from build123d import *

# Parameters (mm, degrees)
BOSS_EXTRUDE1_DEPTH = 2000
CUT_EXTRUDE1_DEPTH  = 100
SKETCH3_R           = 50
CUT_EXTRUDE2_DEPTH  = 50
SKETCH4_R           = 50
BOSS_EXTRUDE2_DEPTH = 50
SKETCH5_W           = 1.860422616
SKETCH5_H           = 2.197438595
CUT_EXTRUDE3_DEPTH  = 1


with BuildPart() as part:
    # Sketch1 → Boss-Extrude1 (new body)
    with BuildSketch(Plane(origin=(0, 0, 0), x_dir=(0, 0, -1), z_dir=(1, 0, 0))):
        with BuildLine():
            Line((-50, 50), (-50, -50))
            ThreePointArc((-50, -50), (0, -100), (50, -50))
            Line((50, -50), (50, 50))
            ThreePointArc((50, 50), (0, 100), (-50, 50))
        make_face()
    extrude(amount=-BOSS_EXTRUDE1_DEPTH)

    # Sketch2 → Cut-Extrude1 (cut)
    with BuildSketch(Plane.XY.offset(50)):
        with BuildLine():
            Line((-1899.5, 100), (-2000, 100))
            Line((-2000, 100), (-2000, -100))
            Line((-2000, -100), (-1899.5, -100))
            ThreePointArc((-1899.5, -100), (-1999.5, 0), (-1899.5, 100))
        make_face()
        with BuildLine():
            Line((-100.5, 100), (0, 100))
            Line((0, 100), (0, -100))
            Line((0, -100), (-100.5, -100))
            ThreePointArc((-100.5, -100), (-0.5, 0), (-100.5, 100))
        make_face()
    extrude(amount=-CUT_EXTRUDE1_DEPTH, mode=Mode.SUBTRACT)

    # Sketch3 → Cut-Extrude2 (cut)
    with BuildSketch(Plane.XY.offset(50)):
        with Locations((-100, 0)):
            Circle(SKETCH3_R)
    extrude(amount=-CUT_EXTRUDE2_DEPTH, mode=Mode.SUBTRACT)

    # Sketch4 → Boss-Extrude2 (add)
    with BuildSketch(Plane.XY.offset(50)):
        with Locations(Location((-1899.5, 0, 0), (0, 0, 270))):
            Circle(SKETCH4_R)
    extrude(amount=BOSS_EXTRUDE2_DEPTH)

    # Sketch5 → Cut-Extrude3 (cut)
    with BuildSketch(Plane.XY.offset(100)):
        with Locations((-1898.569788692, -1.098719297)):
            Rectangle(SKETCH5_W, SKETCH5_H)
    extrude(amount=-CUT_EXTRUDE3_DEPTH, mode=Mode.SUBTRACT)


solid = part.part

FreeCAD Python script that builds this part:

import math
import FreeCAD as App
import Part
import Sketcher

V = App.Vector
Q = App.Units.Quantity

doc = App.newDocument("Part")
params = doc.addObject("Spreadsheet::Sheet", "Params")
for row, (alias, value) in enumerate([
    ("sketch1_radius", "50 mm"),
    ("sketch1_width", "100 mm"),
    ("pad1_length", "2000 mm"),
    ("sketch2_radius", "100 mm"),
    ("sketch2_width", "100.5 mm"),
    ("pocket1_length", "100 mm"),
    ("sketch3_diameter", "100 mm"),
    ("pocket2_length", "50 mm"),
    ("sketch4_diameter", "100 mm"),
    ("pad2_length", "50 mm"),
    ("pocket3_length", "1 mm"),
], start=1):
    params.set(f"A{row}", alias)
    params.set(f"B{row}", "=" + value)
    params.setAlias(f"B{row}", alias)

body = doc.addObject("PartDesign::Body", "Body")

# Sketch on YZ plane
sketch1 = doc.addObject("Sketcher::SketchObject", "Sketch")
body.addObject(sketch1)
sketch1.AttachmentSupport = (doc.YZ_Plane, [""])
sketch1.MapMode = "FlatFace"
sketch1.addGeometry(Part.LineSegment(V(50, 50, 0), V(-50, 50, 0)), False)
sketch1.addGeometry(Part.ArcOfCircle(Part.Circle(V(-50, 0, 0), V(0, 0, 1), 50), math.radians(90), math.radians(270)), False)
sketch1.addGeometry(Part.LineSegment(V(-50, -50, 0), V(50, -50, 0)), False)
sketch1.addGeometry(Part.ArcOfCircle(Part.Circle(V(50, 0, 0), V(0, 0, 1), 50), math.radians(-90), math.radians(90)), False)
sketch1.addConstraint(Sketcher.Constraint("Tangent", 0, 2, 1, 1))
sketch1.addConstraint(Sketcher.Constraint("Tangent", 1, 2, 2, 1))
sketch1.addConstraint(Sketcher.Constraint("Tangent", 2, 2, 3, 1))
sketch1.addConstraint(Sketcher.Constraint("Tangent", 3, 2, 0, 1))
sketch1.addConstraint(Sketcher.Constraint("Horizontal", 0))
sketch1.addConstraint(Sketcher.Constraint("Horizontal", 2))
sketch1.addConstraint(Sketcher.Constraint("Symmetric", 1, 3, 3, 3, -1, 1))
sketch1.addConstraint(Sketcher.Constraint("Radius", 1, Q("50 mm")))
sketch1.addConstraint(Sketcher.Constraint("DistanceX", 0, 2, 0, 1, Q("100 mm")))
sketch1.setExpression("Constraints[7]", "Params.sketch1_radius")
sketch1.setExpression("Constraints[8]", "Params.sketch1_width")
pad1 = doc.addObject("PartDesign::Pad", "Pad")
body.addObject(pad1)
pad1.Profile = sketch1
pad1.setExpression("Length", "Params.pad1_length")
pad1.Reversed = True

# Sketch on XY plane
sketch2 = doc.addObject("Sketcher::SketchObject", "Sketch001")
body.addObject(sketch2)
sketch2.AttachmentSupport = (doc.XY_Plane, [""])
sketch2.MapMode = "FlatFace"
sketch2.AttachmentOffset = App.Placement(V(0, 0, 50), App.Rotation())
sketch2.addGeometry(Part.LineSegment(V(-1900, 100, 0), V(-2000, 100, 0)), False)
sketch2.addGeometry(Part.LineSegment(V(-2000, 100, 0), V(-2000, -100, 0)), False)
sketch2.addGeometry(Part.LineSegment(V(-2000, -100, 0), V(-1900, -100, 0)), False)
sketch2.addGeometry(Part.ArcOfCircle(Part.Circle(V(-1900, 0, 0), V(0, 0, 1), 100), math.radians(90), math.radians(270)), False)
sketch2.addGeometry(Part.LineSegment(V(0, 100, 0), V(-100, 100, 0)), False)
sketch2.addGeometry(Part.ArcOfCircle(Part.Circle(V(-100, 0, 0), V(0, 0, 1), 100), math.radians(-90), math.radians(90)), False)
sketch2.addGeometry(Part.LineSegment(V(-100, -100, 0), V(0, -100, 0)), False)
sketch2.addGeometry(Part.LineSegment(V(0, -100, 0), V(0, 100, 0)), False)
sketch2.addConstraint(Sketcher.Constraint("Coincident", 0, 2, 1, 1))
sketch2.addConstraint(Sketcher.Constraint("Coincident", 1, 2, 2, 1))
sketch2.addConstraint(Sketcher.Constraint("Tangent", 2, 2, 3, 2))
sketch2.addConstraint(Sketcher.Constraint("Tangent", 3, 1, 0, 1))
sketch2.addConstraint(Sketcher.Constraint("Tangent", 4, 2, 5, 2))
sketch2.addConstraint(Sketcher.Constraint("Tangent", 5, 1, 6, 1))
sketch2.addConstraint(Sketcher.Constraint("Coincident", 6, 2, 7, 1))
sketch2.addConstraint(Sketcher.Constraint("Coincident", 7, 2, 4, 1))
sketch2.addConstraint(Sketcher.Constraint("Horizontal", 0))
sketch2.addConstraint(Sketcher.Constraint("Vertical", 1))
sketch2.addConstraint(Sketcher.Constraint("Horizontal", 2))
sketch2.addConstraint(Sketcher.Constraint("Horizontal", 4))
sketch2.addConstraint(Sketcher.Constraint("Horizontal", 6))
sketch2.addConstraint(Sketcher.Constraint("Vertical", 7))
sketch2.addConstraint(Sketcher.Constraint("Equal", 3, 5))
sketch2.addConstraint(Sketcher.Constraint("Symmetric", 6, 2, 7, 2, -1, 1))
sketch2.addConstraint(Sketcher.Constraint("PointOnObject", 3, 3, -1))
sketch2.addConstraint(Sketcher.Constraint("Equal", 2, 4))
sketch2.addConstraint(Sketcher.Constraint("Radius", 3, Q("100 mm")))
sketch2.addConstraint(Sketcher.Constraint("DistanceX", 0, 2, 0, 1, Q("100.5 mm")))
sketch2.addConstraint(Sketcher.Constraint("DistanceX", 0, 2, -1, 1, Q("2000 mm")))
sketch2.setExpression("Constraints[18]", "Params.sketch2_radius")
sketch2.setExpression("Constraints[19]", "Params.sketch2_width")
pocket1 = doc.addObject("PartDesign::Pocket", "Pocket")
body.addObject(pocket1)
pocket1.Profile = sketch2
pocket1.setExpression("Length", "Params.pocket1_length")

# Sketch on XY plane
sketch3 = doc.addObject("Sketcher::SketchObject", "Sketch002")
body.addObject(sketch3)
sketch3.AttachmentSupport = (doc.XY_Plane, [""])
sketch3.MapMode = "FlatFace"
sketch3.AttachmentOffset = App.Placement(V(0, 0, 50), App.Rotation())
sketch3.addGeometry(Part.Circle(V(-100, 0, 0), V(0, 0, 1), 50), False)
sketch3.addConstraint(Sketcher.Constraint("PointOnObject", 0, 3, -1))
sketch3.addConstraint(Sketcher.Constraint("Diameter", 0, Q("100 mm")))
sketch3.addConstraint(Sketcher.Constraint("DistanceX", 0, 3, -1, 1, Q("100 mm")))
sketch3.setExpression("Constraints[1]", "Params.sketch3_diameter")
pocket2 = doc.addObject("PartDesign::Pocket", "Pocket001")
body.addObject(pocket2)
pocket2.Profile = sketch3
pocket2.setExpression("Length", "Params.pocket2_length")

# Sketch on XY plane
sketch4 = doc.addObject("Sketcher::SketchObject", "Sketch003")
body.addObject(sketch4)
sketch4.AttachmentSupport = (doc.XY_Plane, [""])
sketch4.MapMode = "FlatFace"
sketch4.AttachmentOffset = App.Placement(V(0, 0, 50), App.Rotation())
sketch4.addGeometry(Part.Circle(V(-1900, 0, 0), V(0, 0, 1), 50), False)
sketch4.addConstraint(Sketcher.Constraint("PointOnObject", 0, 3, -1))
sketch4.addConstraint(Sketcher.Constraint("Diameter", 0, Q("100 mm")))
sketch4.addConstraint(Sketcher.Constraint("DistanceX", 0, 3, -1, 1, Q("1899.5 mm")))
sketch4.setExpression("Constraints[1]", "Params.sketch4_diameter")
pad2 = doc.addObject("PartDesign::Pad", "Pad001")
body.addObject(pad2)
pad2.Profile = sketch4
pad2.setExpression("Length", "Params.pad2_length")

# Sketch on XY plane
sketch5 = doc.addObject("Sketcher::SketchObject", "Sketch004")
body.addObject(sketch5)
sketch5.AttachmentSupport = (doc.XY_Plane, [""])
sketch5.MapMode = "FlatFace"
sketch5.AttachmentOffset = App.Placement(V(0, 0, 100), App.Rotation())
sketch5.addGeometry(Part.LineSegment(V(-1899.5, 0, 0), V(-1899.5, -2.2, 0)), False)
sketch5.addGeometry(Part.LineSegment(V(-1899.5, -2.2, 0), V(-1897.6, -2.2, 0)), False)
sketch5.addGeometry(Part.LineSegment(V(-1897.6, -2.2, 0), V(-1897.6, 0, 0)), False)
sketch5.addGeometry(Part.LineSegment(V(-1897.6, 0, 0), V(-1899.5, 0, 0)), False)
sketch5.addConstraint(Sketcher.Constraint("Coincident", 0, 2, 1, 1))
sketch5.addConstraint(Sketcher.Constraint("Coincident", 1, 2, 2, 1))
sketch5.addConstraint(Sketcher.Constraint("Coincident", 2, 2, 3, 1))
sketch5.addConstraint(Sketcher.Constraint("Coincident", 3, 2, 0, 1))
sketch5.addConstraint(Sketcher.Constraint("Vertical", 0))
sketch5.addConstraint(Sketcher.Constraint("Horizontal", 1))
sketch5.addConstraint(Sketcher.Constraint("Vertical", 2))
sketch5.addConstraint(Sketcher.Constraint("Horizontal", 3))
sketch5.addConstraint(Sketcher.Constraint("PointOnObject", 2, 2, -1))
sketch5.addConstraint(Sketcher.Constraint("DistanceX", 0, 2, -1, 1, Q("1899.5 mm")))
sketch5.addConstraint(Sketcher.Constraint("DistanceY", 0, 2, 0, 1, Q("2.197439 mm")))
sketch5.addConstraint(Sketcher.Constraint("DistanceX", 1, 1, 1, 2, Q("1.860423 mm")))
pocket3 = doc.addObject("PartDesign::Pocket", "Pocket002")
body.addObject(pocket3)
pocket3.Profile = sketch5
pocket3.setExpression("Length", "Params.pocket3_length")

doc.recompute()
